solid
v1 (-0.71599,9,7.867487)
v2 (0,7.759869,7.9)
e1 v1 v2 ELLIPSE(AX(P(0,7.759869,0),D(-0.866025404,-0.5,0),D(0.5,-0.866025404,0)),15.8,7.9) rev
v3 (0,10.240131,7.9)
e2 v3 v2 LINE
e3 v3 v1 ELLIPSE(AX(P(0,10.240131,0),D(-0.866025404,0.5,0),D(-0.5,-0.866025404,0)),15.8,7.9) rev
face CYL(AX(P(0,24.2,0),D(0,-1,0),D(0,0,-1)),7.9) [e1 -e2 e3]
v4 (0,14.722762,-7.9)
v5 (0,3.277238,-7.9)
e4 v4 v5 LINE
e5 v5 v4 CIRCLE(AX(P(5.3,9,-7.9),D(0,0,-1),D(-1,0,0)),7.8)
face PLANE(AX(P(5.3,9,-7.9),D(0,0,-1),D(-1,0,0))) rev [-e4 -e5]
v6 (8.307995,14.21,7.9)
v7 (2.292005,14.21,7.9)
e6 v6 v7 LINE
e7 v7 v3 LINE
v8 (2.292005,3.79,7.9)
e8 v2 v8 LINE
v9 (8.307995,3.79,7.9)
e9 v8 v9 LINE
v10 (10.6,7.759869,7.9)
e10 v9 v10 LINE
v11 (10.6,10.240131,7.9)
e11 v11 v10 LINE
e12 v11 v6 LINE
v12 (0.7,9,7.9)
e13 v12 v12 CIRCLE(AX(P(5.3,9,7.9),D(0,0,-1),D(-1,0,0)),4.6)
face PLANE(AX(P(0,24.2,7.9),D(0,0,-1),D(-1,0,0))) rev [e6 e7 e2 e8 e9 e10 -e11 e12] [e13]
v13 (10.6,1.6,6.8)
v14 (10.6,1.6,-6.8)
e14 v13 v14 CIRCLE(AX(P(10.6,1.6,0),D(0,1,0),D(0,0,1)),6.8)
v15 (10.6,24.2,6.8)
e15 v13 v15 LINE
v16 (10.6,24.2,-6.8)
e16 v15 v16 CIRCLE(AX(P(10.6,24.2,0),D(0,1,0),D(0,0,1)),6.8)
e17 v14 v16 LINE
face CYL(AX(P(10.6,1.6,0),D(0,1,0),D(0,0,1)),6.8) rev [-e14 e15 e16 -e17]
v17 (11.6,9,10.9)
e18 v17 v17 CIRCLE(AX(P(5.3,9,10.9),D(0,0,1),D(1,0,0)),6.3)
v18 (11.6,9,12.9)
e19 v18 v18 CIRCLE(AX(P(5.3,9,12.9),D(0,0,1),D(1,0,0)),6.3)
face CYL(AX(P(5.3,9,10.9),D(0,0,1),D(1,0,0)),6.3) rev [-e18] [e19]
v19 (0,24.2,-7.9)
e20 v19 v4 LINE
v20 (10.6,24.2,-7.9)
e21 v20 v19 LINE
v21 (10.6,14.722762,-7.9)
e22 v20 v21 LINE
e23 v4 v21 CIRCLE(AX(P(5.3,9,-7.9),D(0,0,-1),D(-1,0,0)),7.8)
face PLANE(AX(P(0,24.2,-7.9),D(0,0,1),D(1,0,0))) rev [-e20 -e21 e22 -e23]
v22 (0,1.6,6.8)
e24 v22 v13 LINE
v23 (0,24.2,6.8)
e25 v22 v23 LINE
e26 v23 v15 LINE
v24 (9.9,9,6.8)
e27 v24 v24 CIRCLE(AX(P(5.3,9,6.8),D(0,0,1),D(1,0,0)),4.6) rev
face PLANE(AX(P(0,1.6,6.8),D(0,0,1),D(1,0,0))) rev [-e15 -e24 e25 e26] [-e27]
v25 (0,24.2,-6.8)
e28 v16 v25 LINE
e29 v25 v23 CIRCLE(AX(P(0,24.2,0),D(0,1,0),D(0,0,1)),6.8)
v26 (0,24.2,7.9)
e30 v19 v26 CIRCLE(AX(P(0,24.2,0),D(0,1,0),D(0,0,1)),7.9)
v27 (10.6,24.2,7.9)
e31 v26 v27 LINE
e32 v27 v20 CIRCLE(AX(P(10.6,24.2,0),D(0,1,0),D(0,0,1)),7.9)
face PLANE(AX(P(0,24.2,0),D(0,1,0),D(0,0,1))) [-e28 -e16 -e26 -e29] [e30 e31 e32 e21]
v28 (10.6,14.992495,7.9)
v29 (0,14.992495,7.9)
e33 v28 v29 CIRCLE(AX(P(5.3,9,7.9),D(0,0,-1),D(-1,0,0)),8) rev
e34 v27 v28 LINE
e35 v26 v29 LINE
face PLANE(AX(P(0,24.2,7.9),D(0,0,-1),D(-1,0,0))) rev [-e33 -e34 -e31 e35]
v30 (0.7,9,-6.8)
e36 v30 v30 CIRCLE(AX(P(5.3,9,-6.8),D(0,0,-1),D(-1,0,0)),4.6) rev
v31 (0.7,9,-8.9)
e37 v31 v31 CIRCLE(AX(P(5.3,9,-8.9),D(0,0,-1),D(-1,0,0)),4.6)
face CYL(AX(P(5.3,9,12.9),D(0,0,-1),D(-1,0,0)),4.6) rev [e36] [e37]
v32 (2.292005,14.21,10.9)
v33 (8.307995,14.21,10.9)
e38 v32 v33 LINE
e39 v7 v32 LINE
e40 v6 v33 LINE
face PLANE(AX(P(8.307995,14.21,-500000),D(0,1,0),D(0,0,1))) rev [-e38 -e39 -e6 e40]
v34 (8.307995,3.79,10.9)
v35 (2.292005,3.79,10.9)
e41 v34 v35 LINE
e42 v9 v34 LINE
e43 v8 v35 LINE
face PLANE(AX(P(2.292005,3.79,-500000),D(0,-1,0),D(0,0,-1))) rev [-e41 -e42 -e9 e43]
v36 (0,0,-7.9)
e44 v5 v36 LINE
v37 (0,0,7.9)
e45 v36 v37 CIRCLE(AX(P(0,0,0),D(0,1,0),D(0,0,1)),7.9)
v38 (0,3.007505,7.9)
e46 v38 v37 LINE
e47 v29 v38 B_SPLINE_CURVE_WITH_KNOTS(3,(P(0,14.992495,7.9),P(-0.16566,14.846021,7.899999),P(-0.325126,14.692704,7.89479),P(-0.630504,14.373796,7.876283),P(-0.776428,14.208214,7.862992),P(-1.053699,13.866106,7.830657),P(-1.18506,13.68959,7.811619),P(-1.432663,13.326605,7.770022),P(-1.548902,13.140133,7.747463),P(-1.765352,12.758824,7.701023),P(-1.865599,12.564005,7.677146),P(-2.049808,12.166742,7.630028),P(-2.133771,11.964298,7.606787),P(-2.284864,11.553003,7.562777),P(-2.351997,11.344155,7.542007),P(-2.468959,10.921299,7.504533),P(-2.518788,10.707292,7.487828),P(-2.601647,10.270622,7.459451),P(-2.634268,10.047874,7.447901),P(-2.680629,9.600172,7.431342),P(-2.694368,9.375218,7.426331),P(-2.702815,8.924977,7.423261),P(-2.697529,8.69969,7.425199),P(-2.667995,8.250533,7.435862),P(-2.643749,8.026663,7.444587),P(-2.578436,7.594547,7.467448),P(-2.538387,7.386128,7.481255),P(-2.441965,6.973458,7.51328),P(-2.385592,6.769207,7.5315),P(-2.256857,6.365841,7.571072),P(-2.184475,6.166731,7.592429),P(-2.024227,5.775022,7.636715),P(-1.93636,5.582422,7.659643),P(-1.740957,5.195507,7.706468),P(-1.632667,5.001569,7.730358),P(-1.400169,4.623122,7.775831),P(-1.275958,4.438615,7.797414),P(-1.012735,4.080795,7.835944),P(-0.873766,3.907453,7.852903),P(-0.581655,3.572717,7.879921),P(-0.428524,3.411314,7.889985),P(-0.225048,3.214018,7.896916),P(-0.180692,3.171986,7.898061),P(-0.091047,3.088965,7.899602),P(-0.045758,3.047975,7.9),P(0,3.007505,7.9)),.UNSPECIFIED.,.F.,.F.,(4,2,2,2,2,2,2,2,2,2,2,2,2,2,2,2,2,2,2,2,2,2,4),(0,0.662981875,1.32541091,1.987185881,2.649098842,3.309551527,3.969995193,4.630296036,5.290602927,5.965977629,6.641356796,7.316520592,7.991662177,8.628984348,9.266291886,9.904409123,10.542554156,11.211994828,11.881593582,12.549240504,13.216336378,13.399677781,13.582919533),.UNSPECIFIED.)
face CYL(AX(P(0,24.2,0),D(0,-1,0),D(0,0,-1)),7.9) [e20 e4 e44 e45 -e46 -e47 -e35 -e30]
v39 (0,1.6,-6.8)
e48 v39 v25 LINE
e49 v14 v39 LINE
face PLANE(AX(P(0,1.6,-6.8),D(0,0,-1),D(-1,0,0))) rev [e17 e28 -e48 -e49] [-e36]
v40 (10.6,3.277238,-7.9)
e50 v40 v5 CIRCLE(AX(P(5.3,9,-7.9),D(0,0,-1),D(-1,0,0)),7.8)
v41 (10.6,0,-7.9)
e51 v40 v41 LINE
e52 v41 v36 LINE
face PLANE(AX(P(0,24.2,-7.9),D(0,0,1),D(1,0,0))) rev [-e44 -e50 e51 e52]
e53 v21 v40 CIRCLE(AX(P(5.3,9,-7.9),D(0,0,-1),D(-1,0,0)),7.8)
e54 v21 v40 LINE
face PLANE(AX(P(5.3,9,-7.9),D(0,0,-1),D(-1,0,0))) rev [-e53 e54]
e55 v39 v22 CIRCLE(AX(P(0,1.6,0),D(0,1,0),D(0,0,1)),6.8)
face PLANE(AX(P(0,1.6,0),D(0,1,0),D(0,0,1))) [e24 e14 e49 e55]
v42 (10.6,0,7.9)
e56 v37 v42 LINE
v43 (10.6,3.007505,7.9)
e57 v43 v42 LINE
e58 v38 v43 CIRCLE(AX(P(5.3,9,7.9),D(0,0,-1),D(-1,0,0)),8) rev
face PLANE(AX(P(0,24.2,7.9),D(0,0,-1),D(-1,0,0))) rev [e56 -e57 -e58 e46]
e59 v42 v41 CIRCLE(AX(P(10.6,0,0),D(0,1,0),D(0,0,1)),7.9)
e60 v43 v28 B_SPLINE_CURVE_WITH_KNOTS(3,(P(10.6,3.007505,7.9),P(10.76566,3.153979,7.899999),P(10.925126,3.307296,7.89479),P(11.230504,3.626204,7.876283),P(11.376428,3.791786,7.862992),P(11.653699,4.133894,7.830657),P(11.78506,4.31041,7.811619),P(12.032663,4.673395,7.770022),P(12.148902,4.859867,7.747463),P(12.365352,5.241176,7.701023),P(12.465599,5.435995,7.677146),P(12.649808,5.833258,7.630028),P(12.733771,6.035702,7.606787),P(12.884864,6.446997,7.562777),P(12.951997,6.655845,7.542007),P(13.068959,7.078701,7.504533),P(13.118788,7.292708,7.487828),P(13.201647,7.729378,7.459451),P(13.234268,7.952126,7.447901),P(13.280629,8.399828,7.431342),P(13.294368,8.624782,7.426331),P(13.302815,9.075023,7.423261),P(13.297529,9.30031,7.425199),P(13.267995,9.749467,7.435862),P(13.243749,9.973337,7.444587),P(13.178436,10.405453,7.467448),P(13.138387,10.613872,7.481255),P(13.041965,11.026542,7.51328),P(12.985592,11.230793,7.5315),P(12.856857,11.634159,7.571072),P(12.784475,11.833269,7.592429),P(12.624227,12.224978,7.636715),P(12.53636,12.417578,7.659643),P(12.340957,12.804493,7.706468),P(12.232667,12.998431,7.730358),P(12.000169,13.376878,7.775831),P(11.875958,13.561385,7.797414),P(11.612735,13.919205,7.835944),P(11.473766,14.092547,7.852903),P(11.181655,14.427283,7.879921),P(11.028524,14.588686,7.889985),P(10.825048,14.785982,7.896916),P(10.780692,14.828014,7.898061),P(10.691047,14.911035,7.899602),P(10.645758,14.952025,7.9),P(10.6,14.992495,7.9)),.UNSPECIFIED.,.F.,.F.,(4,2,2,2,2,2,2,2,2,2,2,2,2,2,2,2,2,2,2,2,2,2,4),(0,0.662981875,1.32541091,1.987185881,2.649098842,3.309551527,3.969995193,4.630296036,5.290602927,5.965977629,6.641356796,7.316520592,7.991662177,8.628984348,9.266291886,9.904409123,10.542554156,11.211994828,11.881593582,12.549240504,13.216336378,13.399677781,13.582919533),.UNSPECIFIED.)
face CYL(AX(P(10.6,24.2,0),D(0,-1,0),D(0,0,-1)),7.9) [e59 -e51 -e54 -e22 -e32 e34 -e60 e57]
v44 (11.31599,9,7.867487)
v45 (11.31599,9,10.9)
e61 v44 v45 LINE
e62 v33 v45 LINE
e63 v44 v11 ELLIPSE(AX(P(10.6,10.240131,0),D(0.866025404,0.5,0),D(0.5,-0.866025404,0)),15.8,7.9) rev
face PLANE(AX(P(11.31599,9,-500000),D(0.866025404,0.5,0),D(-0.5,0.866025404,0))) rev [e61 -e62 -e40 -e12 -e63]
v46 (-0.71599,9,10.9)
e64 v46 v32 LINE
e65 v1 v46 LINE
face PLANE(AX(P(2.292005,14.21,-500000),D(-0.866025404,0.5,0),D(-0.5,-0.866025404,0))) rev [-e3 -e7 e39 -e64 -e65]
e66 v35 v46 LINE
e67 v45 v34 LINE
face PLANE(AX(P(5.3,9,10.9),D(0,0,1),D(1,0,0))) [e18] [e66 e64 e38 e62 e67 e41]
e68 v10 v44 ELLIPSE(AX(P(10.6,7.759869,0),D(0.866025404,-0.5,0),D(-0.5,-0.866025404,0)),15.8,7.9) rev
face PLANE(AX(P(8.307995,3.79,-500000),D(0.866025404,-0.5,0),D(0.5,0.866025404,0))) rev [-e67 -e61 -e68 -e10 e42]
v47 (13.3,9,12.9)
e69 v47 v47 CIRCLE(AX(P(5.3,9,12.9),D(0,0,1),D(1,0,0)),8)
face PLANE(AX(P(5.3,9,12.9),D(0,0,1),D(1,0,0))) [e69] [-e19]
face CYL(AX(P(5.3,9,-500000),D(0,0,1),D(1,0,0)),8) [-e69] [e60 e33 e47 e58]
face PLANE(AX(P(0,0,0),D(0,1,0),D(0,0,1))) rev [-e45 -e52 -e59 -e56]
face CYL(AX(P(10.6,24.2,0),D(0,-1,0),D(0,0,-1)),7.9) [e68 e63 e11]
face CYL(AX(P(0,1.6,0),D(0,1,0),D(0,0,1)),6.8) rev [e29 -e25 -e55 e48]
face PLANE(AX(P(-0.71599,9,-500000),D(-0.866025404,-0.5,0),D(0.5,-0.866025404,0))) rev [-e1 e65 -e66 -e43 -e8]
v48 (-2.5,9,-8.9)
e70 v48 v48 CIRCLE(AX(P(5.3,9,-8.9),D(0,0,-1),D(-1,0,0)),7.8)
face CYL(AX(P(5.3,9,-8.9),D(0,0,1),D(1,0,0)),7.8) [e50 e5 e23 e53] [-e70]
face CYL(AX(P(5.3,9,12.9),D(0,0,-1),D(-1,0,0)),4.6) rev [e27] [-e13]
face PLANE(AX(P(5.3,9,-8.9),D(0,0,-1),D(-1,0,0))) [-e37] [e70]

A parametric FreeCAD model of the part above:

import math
import FreeCAD as App
import Part
import Sketcher
from FreeCAD import Vector
Q = App.Units.Quantity


def add_polygon(sketch, points):
    """Adds a closed chain of lines whose ends are joined by coincident constraints."""
    first, n = sketch.GeometryCount, len(points)
    for a, b in zip(points, points[1:] + points[:1]):
        sketch.addGeometry(Part.LineSegment(App.Vector(*a, 0), App.Vector(*b, 0)), False)
    for i in range(n):
        sketch.addConstraint(Sketcher.Constraint("Coincident", first + i, 2, first + (i + 1) % n, 1))

doc = App.newDocument("Part")
body = doc.addObject("PartDesign::Body", "Body")

# Sketch on XZ plane
sketch1 = body.newObject("Sketcher::SketchObject", "Sketch")
sketch1.AttachmentSupport = (doc.getObject("XZ_Plane"), [""])
sketch1.MapMode = "FlatFace"
sketch1.addGeometry([
    Part.LineSegment(Vector(11, -8, 0), Vector(0, -8, 0)),
    Part.ArcOfCircle(Part.Circle(Vector(0, 0, 0), Vector(0, 0, 1), 8), math.radians(90), math.radians(270)),
    Part.LineSegment(Vector(0, 8, 0), Vector(11, 8, 0)),
    Part.ArcOfCircle(Part.Circle(Vector(11, 0, 0), Vector(0, 0, 1), 8), math.radians(-90), math.radians(90)),
], False)
sketch1.addConstraint([
    Sketcher.Constraint("Tangent", 0, 2, 1, 2),
    Sketcher.Constraint("Tangent", 1, 1, 2, 1),
    Sketcher.Constraint("Tangent", 2, 2, 3, 2),
    Sketcher.Constraint("Tangent", 3, 1, 0, 1),
    Sketcher.Constraint("Horizontal", 0),
    Sketcher.Constraint("Horizontal", 2),
    Sketcher.Constraint("Coincident", 1, 3, -1, 1),
    Sketcher.Constraint("Radius", 1, 7.9),
    Sketcher.Constraint("DistanceX", 0, 2, 0, 1, 10.6),
])
pad1 = body.newObject("PartDesign::Pad", "Pad")
pad1.Profile = sketch1
pad1.Length = 24.2
pad1.Reversed = True

# Sketch on XY plane
sketch2 = body.newObject("Sketcher::SketchObject", "Sketch001")
sketch2.AttachmentSupport = (doc.getObject("XY_Plane"), [""])
sketch2.MapMode = "FlatFace"
sketch2.AttachmentOffset = App.Placement(Vector(0, 0, 12.9), App.Rotation())
sketch2.addGeometry(Part.Circle(Vector(5, 9, 0), Vector(0, 0, 1), 8), False)  # 0
add_polygon(sketch2, [(2, 14), (8, 14), (11, 9), (8, 4), (2, 4), (-1, 9)])  # lines 1-6
sketch2.addConstraint([
    Sketcher.Constraint("Horizontal", 1),
    Sketcher.Constraint("Horizontal", 4),
    Sketcher.Constraint("Parallel", 2, 5),
    Sketcher.Constraint("Parallel", 3, 6),
    Sketcher.Constraint("Horizontal", 0, 3, 2, 2),
    Sketcher.Constraint("Horizontal", 2, 2, 5, 2),
    Sketcher.Constraint("Vertical", 1, 2, 3, 2),
    Sketcher.Constraint("Vertical", 4, 2, 6, 2),
    Sketcher.Constraint("Diameter", 0, 16.0),
    Sketcher.Constraint("Angle", 2, Q("-60 deg")),
    Sketcher.Constraint("DistanceY", -1, 1, 0, 3, 9.0),
    Sketcher.Constraint("DistanceX", -1, 1, 0, 3, 5.3),
    Sketcher.Constraint("DistanceY", -1, 1, 1, 2, 14.21),
    Sketcher.Constraint("DistanceX", 1, 1, 1, 2, 6.01599),
    Sketcher.Constraint("DistanceX", -1, 1, 2, 2, 11.31599),
])
pad2 = body.newObject("PartDesign::Pad", "Pad001")
pad2.Profile = sketch2
pad2.Length = 5.475716
pad2.Reversed = True

# Sketch on XY plane
sketch3 = body.newObject("Sketcher::SketchObject", "Sketch002")
sketch3.AttachmentSupport = (doc.getObject("XY_Plane"), [""])
sketch3.MapMode = "FlatFace"
sketch3.AttachmentOffset = App.Placement(Vector(0, 0, 12.9), App.Rotation())
sketch3.addGeometry(Part.Circle(Vector(5, 9, 0), Vector(0, 0, 1), 6), False)
sketch3.addConstraint([
    Sketcher.Constraint("Diameter", 0, 12.6),
    Sketcher.Constraint("DistanceY", -1, 1, 0, 3, 9.0),
    Sketcher.Constraint("DistanceX", -1, 1, 0, 3, 5.3),
])
pocket1 = body.newObject("PartDesign::Pocket", "Pocket")
pocket1.Profile = sketch3
pocket1.Length = 2

# Sketch on XY plane
sketch4 = body.newObject("Sketcher::SketchObject", "Sketch003")
sketch4.AttachmentSupport = (doc.getObject("XY_Plane"), [""])
sketch4.MapMode = "FlatFace"
sketch4.AttachmentOffset = App.Placement(Vector(0, 0, -7.9), App.Rotation())
sketch4.addGeometry(Part.Circle(Vector(5.3, 9, 0), Vector(0, 0, 1), 4.6), False)
sketch4.addConstraint([
    Sketcher.Constraint("Diameter", 0, 9.2),
    Sketcher.Constraint("DistanceY", -1, 1, 0, 3, 9.0),
    Sketcher.Constraint("DistanceX", -1, 1, 0, 3, 5.3),
])
pocket2 = body.newObject("PartDesign::Pocket", "Pocket001")
pocket2.Profile = sketch4
pocket2.Type = "ThroughAll"
pocket2.Reversed = True

# Sketch on XY plane
sketch5 = body.newObject("Sketcher::SketchObject", "Sketch004")
sketch5.AttachmentSupport = (doc.getObject("XY_Plane"), [""])
sketch5.MapMode = "FlatFace"
sketch5.AttachmentOffset = App.Placement(Vector(0, 0, -8.9), App.Rotation())
sketch5.addGeometry([
    Part.Circle(Vector(5.3, 9, 0), Vector(0, 0, 1), 7.8),
    Part.Circle(Vector(5.3, 9, 0), Vector(0, 0, 1), 4.6),
], False)
sketch5.addConstraint([
    Sketcher.Constraint("Coincident", 1, 3, 0, 3),
    Sketcher.Constraint("Diameter", 0, 15.6),
    Sketcher.Constraint("Diameter", 1, 9.2),
    Sketcher.Constraint("DistanceY", -1, 1, 0, 3, 9.0),
    Sketcher.Constraint("DistanceX", -1, 1, 0, 3, 5.3),
])
pad3 = body.newObject("PartDesign::Pad", "Pad002")
pad3.Profile = sketch5
pad3.Length = 1

# Sketch on XZ plane
sketch6 = body.newObject("Sketcher::SketchObject", "Sketch005")
sketch6.AttachmentSupport = (doc.getObject("XZ_Plane"), [""])
sketch6.MapMode = "FlatFace"
sketch6.AttachmentOffset = App.Placement(Vector(0, 0, -24.2), App.Rotation())
sketch6.addGeometry([
    Part.LineSegment(Vector(11, -7, 0), Vector(0, -7, 0)),
    Part.ArcOfCircle(Part.Circle(Vector(0, 0, 0), Vector(0, 0, 1), 7), math.radians(90), math.radians(270)),
    Part.LineSegment(Vector(0, 7, 0), Vector(11, 7, 0)),
    Part.ArcOfCircle(Part.Circle(Vector(11, 0, 0), Vector(0, 0, 1), 7), math.radians(-90), math.radians(90)),
], False)
sketch6.addConstraint([
    Sketcher.Constraint("Tangent", 0, 2, 1, 2),
    Sketcher.Constraint("Tangent", 1, 1, 2, 1),
    Sketcher.Constraint("Tangent", 2, 2, 3, 2),
    Sketcher.Constraint("Tangent", 3, 1, 0, 1),
    Sketcher.Constraint("Horizontal", 0),
    Sketcher.Constraint("Horizontal", 2),
    Sketcher.Constraint("Coincident", 1, 3, -1, 1),
    Sketcher.Constraint("Radius", 1, 6.8),
    Sketcher.Constraint("DistanceX", 0, 2, 0, 1, 10.6),
])
pocket3 = body.newObject("PartDesign::Pocket", "Pocket002")
pocket3.Profile = sketch6
pocket3.Length = 22.6
pocket3.Reversed = True

doc.recompute()
